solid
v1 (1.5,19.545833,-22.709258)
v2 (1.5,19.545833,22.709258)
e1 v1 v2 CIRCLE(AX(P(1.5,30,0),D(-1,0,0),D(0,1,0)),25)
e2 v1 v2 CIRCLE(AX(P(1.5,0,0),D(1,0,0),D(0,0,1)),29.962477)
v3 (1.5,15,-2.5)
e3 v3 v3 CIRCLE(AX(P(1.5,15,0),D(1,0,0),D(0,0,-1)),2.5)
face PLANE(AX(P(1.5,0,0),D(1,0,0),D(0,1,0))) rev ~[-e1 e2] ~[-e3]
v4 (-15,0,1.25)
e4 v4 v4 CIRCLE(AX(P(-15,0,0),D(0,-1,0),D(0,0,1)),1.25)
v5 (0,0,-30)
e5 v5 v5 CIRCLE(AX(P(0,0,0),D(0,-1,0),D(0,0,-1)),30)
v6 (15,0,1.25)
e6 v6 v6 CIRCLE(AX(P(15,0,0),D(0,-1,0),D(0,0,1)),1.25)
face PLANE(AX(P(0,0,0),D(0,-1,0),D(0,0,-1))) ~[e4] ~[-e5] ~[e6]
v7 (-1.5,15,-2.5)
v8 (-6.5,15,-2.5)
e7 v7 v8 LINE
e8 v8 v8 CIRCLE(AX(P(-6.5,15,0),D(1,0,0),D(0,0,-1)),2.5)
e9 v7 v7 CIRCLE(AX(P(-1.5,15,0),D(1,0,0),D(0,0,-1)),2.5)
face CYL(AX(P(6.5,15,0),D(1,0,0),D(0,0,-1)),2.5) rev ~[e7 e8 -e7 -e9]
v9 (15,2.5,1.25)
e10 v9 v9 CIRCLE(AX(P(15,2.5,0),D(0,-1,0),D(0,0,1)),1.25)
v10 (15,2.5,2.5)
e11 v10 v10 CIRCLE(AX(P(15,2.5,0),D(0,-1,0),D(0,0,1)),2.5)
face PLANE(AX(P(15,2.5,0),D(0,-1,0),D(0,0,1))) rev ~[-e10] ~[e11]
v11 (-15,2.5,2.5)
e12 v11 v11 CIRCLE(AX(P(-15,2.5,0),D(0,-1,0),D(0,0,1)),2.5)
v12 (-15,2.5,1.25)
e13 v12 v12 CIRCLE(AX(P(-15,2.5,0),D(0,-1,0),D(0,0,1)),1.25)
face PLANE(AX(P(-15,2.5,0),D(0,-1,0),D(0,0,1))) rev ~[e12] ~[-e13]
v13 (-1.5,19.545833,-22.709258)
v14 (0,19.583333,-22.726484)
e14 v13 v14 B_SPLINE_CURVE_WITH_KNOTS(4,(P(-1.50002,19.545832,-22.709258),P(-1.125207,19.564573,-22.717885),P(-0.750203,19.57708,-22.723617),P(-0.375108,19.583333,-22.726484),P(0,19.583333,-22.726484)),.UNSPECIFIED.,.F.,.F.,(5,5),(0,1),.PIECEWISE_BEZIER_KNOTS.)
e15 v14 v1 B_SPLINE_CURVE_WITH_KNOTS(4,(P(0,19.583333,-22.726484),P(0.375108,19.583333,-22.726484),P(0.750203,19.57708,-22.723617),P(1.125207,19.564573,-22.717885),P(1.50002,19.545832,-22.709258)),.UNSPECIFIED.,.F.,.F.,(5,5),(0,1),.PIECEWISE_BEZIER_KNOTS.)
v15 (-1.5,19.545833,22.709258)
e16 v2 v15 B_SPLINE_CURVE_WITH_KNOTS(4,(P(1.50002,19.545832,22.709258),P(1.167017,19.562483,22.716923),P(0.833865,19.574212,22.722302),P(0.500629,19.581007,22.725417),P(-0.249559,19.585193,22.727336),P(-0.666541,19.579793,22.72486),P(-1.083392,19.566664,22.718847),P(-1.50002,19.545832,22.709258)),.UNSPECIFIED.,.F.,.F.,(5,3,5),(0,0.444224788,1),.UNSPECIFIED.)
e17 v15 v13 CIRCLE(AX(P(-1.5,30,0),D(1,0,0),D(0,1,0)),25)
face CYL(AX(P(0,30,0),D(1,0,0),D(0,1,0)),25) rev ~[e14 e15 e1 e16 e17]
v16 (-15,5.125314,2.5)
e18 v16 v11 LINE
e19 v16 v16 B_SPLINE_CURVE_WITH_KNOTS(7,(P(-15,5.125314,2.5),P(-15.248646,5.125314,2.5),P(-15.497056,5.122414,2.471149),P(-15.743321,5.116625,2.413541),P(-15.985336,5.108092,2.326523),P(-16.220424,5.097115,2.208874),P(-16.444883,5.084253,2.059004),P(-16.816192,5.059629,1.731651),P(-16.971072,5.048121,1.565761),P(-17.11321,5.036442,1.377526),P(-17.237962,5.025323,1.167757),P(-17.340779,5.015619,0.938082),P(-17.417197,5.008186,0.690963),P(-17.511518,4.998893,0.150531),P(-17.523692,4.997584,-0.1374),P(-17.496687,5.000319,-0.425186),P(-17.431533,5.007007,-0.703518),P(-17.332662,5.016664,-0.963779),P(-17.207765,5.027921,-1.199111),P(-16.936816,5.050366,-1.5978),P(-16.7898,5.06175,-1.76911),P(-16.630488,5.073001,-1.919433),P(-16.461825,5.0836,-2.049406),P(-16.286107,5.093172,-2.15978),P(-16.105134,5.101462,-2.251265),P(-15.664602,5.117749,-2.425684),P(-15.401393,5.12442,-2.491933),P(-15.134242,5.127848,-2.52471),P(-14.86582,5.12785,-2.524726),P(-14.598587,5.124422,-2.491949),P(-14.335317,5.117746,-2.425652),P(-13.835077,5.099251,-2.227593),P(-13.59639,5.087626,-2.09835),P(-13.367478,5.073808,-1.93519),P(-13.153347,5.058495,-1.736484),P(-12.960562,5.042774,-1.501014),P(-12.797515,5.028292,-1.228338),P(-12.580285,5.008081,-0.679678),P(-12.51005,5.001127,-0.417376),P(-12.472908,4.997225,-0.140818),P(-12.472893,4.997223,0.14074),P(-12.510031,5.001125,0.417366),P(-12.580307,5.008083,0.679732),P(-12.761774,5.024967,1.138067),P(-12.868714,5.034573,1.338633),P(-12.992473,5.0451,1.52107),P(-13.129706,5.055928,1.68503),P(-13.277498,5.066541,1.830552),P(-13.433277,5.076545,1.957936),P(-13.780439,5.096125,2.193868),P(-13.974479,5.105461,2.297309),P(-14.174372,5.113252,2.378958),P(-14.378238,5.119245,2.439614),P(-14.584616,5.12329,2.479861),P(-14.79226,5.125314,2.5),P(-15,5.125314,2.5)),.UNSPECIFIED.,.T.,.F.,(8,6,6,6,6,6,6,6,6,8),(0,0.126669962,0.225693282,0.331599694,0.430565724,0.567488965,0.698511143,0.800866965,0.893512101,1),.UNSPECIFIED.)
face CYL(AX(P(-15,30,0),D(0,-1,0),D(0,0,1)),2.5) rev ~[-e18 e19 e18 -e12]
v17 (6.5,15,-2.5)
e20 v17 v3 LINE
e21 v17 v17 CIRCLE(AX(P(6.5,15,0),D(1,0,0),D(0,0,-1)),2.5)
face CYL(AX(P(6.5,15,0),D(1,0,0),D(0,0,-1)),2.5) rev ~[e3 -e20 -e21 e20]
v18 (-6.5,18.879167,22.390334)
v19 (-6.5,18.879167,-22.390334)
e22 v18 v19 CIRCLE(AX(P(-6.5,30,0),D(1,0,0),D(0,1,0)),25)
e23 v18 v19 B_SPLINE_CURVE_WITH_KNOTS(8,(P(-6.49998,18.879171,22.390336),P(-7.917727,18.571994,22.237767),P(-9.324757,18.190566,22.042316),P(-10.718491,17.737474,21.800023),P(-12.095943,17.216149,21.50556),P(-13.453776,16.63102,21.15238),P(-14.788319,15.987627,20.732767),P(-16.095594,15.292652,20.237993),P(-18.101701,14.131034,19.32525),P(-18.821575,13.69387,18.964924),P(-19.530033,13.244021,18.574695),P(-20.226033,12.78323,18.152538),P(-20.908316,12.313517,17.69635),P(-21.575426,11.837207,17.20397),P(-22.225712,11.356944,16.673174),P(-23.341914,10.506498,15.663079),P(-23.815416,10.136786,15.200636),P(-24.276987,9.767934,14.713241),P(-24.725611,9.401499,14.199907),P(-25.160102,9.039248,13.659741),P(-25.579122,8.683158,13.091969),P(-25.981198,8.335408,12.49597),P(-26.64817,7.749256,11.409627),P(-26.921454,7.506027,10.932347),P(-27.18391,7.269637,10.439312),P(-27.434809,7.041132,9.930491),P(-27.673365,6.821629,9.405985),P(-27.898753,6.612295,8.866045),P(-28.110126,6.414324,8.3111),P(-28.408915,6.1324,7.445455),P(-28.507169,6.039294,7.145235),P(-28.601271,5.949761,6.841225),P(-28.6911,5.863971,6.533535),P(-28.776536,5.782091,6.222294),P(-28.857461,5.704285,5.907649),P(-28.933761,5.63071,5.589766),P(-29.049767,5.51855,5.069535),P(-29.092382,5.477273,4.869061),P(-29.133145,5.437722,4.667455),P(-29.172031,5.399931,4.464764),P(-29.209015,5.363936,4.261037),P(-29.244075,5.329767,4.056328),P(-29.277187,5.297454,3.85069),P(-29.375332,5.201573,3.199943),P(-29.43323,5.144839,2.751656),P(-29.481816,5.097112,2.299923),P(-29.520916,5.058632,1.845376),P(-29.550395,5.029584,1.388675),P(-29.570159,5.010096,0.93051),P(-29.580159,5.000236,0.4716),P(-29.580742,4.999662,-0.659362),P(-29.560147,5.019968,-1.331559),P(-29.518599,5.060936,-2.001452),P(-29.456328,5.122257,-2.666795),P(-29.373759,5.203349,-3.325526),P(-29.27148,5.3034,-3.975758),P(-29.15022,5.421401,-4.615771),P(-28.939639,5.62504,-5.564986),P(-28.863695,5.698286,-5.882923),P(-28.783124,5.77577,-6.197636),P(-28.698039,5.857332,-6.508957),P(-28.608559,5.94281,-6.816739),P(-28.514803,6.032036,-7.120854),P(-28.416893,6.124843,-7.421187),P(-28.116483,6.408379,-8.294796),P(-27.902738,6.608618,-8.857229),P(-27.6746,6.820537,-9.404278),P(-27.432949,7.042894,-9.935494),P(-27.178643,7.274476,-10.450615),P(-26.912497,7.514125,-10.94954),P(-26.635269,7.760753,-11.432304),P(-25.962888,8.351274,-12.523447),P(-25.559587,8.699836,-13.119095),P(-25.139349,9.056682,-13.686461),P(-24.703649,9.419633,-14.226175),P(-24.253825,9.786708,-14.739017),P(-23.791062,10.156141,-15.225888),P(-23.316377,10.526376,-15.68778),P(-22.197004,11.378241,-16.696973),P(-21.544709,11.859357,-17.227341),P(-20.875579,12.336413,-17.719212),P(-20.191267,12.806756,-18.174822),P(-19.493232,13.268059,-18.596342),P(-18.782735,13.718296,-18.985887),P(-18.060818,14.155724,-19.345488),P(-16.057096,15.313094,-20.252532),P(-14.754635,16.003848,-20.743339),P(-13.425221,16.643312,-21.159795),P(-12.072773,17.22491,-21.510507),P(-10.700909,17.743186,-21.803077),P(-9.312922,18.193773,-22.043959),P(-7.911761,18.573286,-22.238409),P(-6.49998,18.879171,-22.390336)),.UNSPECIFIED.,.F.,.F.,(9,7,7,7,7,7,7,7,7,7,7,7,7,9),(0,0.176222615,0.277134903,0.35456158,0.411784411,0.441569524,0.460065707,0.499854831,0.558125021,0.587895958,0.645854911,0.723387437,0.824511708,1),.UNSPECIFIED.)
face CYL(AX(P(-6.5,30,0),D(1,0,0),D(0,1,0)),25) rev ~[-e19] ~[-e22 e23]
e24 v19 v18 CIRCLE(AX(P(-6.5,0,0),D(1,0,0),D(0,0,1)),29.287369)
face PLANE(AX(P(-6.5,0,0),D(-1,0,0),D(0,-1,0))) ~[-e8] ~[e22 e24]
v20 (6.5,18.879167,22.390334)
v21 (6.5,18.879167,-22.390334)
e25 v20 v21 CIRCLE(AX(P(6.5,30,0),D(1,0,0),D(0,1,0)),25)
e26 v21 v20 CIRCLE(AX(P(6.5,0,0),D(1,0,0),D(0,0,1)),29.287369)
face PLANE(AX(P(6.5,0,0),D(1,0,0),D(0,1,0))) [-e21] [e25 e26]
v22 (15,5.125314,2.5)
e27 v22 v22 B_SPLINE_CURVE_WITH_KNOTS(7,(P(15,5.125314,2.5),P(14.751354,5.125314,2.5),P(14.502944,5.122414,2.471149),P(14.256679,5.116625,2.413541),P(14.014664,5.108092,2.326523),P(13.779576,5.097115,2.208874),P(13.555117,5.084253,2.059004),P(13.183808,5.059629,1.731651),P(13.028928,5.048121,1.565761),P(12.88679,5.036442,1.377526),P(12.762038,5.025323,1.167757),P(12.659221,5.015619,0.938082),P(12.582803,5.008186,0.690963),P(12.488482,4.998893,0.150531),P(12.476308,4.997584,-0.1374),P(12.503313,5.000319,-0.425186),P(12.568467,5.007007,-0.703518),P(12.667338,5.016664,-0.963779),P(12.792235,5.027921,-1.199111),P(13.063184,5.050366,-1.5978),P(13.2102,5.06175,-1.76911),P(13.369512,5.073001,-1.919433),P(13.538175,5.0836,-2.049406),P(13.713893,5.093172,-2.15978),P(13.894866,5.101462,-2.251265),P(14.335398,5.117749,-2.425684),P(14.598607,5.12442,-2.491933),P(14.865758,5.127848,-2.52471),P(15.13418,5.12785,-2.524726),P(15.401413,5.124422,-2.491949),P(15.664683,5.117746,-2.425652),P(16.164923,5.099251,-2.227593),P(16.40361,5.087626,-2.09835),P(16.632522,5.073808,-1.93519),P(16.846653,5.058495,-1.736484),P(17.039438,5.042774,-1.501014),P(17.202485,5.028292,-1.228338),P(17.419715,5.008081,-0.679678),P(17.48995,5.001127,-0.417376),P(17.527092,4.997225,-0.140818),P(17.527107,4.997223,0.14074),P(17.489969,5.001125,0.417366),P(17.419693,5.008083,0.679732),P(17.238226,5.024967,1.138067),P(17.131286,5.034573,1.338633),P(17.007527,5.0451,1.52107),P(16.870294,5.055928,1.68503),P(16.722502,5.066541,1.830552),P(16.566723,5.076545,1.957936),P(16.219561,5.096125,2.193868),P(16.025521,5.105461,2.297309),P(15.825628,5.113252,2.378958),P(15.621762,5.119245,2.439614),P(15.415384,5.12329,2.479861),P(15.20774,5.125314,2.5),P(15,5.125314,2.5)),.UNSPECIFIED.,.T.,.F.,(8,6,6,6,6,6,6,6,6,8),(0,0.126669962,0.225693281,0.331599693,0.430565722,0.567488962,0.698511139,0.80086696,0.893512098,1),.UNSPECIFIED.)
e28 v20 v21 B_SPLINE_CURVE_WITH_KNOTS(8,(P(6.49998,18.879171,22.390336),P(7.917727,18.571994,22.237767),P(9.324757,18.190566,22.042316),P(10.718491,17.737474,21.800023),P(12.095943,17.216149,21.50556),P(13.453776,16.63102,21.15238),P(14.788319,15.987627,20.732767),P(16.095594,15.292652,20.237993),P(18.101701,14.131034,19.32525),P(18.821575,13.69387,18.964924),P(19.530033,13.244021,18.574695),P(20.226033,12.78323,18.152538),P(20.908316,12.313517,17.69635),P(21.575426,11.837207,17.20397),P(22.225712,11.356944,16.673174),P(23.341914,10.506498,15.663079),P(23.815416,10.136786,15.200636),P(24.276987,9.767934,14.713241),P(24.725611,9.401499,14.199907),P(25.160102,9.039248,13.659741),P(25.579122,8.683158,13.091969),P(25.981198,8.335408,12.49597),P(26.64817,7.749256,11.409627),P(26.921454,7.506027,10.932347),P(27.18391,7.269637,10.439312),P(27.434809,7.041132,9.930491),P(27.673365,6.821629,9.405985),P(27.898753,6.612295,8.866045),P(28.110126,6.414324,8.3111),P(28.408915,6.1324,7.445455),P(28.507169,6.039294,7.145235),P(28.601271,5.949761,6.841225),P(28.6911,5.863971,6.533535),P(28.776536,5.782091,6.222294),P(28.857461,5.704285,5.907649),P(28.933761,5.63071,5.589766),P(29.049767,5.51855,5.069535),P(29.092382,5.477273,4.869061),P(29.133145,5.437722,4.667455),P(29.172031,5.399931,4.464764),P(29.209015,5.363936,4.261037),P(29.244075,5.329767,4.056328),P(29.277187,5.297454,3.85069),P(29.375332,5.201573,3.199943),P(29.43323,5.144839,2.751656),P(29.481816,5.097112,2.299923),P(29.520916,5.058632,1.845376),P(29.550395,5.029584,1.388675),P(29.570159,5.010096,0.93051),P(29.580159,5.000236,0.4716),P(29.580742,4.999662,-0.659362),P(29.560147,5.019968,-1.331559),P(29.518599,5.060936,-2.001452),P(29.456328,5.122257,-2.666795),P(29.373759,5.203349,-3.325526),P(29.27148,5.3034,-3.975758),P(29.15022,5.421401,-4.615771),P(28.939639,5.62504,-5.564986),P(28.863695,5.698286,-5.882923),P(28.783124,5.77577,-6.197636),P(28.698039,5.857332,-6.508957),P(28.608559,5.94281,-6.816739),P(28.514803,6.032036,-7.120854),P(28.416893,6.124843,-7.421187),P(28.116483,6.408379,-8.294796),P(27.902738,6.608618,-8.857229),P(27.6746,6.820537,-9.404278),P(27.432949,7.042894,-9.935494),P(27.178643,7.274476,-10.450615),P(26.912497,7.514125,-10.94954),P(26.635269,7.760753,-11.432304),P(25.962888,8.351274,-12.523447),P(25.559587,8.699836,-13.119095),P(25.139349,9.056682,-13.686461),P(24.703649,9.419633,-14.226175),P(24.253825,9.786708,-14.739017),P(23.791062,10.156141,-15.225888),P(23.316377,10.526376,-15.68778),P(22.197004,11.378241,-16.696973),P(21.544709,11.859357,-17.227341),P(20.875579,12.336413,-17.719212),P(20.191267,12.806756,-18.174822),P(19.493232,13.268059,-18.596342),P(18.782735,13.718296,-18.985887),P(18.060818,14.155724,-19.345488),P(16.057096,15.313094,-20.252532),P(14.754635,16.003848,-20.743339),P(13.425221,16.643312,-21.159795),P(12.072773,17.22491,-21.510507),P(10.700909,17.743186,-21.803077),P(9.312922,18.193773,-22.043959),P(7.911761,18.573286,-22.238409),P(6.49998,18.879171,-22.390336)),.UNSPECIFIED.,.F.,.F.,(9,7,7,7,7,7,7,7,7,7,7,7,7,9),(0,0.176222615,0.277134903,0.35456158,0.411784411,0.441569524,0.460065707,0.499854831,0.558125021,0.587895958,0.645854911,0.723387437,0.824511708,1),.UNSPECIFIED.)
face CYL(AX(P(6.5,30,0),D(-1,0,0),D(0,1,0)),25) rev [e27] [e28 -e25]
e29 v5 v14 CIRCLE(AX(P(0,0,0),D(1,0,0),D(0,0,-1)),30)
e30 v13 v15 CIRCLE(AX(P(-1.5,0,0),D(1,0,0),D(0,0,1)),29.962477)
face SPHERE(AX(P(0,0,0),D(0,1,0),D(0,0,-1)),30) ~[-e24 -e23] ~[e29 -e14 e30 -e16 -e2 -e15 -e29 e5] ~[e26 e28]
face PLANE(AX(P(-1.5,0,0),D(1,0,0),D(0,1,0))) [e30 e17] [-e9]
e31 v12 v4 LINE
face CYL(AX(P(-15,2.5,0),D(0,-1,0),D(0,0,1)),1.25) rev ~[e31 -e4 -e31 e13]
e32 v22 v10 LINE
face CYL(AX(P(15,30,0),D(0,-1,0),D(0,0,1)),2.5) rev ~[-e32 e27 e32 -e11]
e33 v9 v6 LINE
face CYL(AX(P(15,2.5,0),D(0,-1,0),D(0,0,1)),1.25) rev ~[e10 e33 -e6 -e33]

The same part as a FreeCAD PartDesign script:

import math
import FreeCAD as App
import Part
import Sketcher
from FreeCAD import Vector
Q = App.Units.Quantity

doc = App.newDocument("Part")
body = doc.addObject("PartDesign::Body", "Body")

sketch1 = body.newObject("Sketcher::SketchObject", "Sketch")
sketch1.AttachmentSupport = (doc.getObject("YZ_Plane"), [""])
sketch1.MapMode = "FlatFace"
sketch1.addGeometry([
    Part.LineSegment(Vector(0, 0, 0), Vector(0, -30, 0)),
    Part.ArcOfCircle(Part.Circle(Vector(0, 0, 0), Vector(0, 0, 1), 30), math.radians(-90), math.radians(0)),
    Part.LineSegment(Vector(30, 0, 0), Vector(0, 0, 0)),
], False)
sketch1.addConstraint([
    Sketcher.Constraint("Coincident", 0, 2, 1, 1),
    Sketcher.Constraint("Coincident", 1, 2, 2, 1),
    Sketcher.Constraint("Coincident", 2, 2, 0, 1),
    Sketcher.Constraint("Vertical", 0),
    Sketcher.Constraint("Horizontal", 2),
    Sketcher.Constraint("Coincident", 1, 3, -1, 1),
    Sketcher.Constraint("Coincident", 2, 2, -1, 1),
    Sketcher.Constraint("Radius", 1, Q("30 mm")),
])
revolution = body.newObject("PartDesign::Revolution", "Revolution")
revolution.Profile = sketch1
revolution.ReferenceAxis = (sketch1, ["H_Axis"])
revolution.Angle = 360

sketch2 = body.newObject("Sketcher::SketchObject", "Sketch001")
sketch2.AttachmentSupport = (doc.getObject("YZ_Plane"), [""])
sketch2.MapMode = "FlatFace"
sketch2.AttachmentOffset = App.Placement(Vector(0, 0, 6.5), App.Rotation())
sketch2.addGeometry(Part.Circle(Vector(30, 0, 0), Vector(0, 0, 1), 25), False)
sketch2.addConstraint([
    Sketcher.Constraint("PointOnObject", 0, 3, -1),
    Sketcher.Constraint("Diameter", 0, Q("50 mm")),
    Sketcher.Constraint("DistanceX", -1, 1, 0, 3, Q("30 mm")),
])
pocket1 = body.newObject("PartDesign::Pocket", "Pocket")
pocket1.Profile = sketch2
pocket1.Type = "ThroughAll"
pocket1.Reversed = True
doc.recompute()

mirrored = body.newObject("PartDesign::Mirrored", "Mirrored")
mirrored.Originals = [pocket1]
mirrored.MirrorPlane = (doc.getObject("YZ_Plane"), [""])
body.Tip = mirrored

sketch3 = body.newObject("Sketcher::SketchObject", "Sketch002")
sketch3.AttachmentSupport = (doc.getObject("YZ_Plane"), [""])
sketch3.MapMode = "FlatFace"
sketch3.addGeometry(Part.Circle(Vector(30, 0, 0), Vector(0, 0, 1), 25), False)
sketch3.addConstraint([
    Sketcher.Constraint("PointOnObject", 0, 3, -1),
    Sketcher.Constraint("Diameter", 0, Q("50 mm")),
    Sketcher.Constraint("DistanceX", -1, 1, 0, 3, Q("30 mm")),
])
pocket2 = body.newObject("PartDesign::Pocket", "Pocket001")
pocket2.Profile = sketch3
pocket2.Length = 3
pocket2.Midplane = True

sketch4 = body.newObject("Sketcher::SketchObject", "Sketch003")
sketch4.AttachmentSupport = (doc.getObject("YZ_Plane"), [""])
sketch4.MapMode = "FlatFace"
sketch4.AttachmentOffset = App.Placement(Vector(0, 0, 6.5), App.Rotation())
sketch4.addGeometry(Part.Circle(Vector(15, 0, 0), Vector(0, 0, 1), 2.5), False)
sketch4.addConstraint([
    Sketcher.Constraint("PointOnObject", 0, 3, -1),
    Sketcher.Constraint("Diameter", 0, Q("5 mm")),
    Sketcher.Constraint("DistanceX", -1, 1, 0, 3, Q("15 mm")),
])
pocket3 = body.newObject("PartDesign::Pocket", "Pocket002")
pocket3.Profile = sketch4
pocket3.Type = "ThroughAll"

sketch5 = body.newObject("Sketcher::SketchObject", "Sketch004")
sketch5.AttachmentSupport = (doc.getObject("XZ_Plane"), [""])
sketch5.MapMode = "FlatFace"
sketch5.AttachmentOffset = App.Placement(Vector(0, 0, -30), App.Rotation())
sketch5.addGeometry([
    Part.Circle(Vector(-15, 0, 0), Vector(0, 0, 1), 1.2),
    Part.Circle(Vector(15, 0, 0), Vector(0, 0, 1), 1.2),
], False)
sketch5.addConstraint([
    Sketcher.Constraint("Equal", 0, 1),
    Sketcher.Constraint("Symmetric", 0, 3, 1, 3, -1, 1),
    Sketcher.Constraint("PointOnObject", 0, 3, -1),
    Sketcher.Constraint("Diameter", 0, Q("2.5 mm")),
    Sketcher.Constraint("DistanceX", 0, 3, -1, 1, Q("15 mm")),
])
doc.recompute()
hole = body.newObject("PartDesign::Hole", "Hole")
hole.Profile = sketch5
hole.ThreadType = "None"
hole.Diameter = 2.5
hole.DepthType = "ThroughAll"
hole.HoleCutType = "Counterbore"
hole.HoleCutDiameter = 5
hole.HoleCutDepth = 27.5
hole.Reversed = True

doc.recompute()
